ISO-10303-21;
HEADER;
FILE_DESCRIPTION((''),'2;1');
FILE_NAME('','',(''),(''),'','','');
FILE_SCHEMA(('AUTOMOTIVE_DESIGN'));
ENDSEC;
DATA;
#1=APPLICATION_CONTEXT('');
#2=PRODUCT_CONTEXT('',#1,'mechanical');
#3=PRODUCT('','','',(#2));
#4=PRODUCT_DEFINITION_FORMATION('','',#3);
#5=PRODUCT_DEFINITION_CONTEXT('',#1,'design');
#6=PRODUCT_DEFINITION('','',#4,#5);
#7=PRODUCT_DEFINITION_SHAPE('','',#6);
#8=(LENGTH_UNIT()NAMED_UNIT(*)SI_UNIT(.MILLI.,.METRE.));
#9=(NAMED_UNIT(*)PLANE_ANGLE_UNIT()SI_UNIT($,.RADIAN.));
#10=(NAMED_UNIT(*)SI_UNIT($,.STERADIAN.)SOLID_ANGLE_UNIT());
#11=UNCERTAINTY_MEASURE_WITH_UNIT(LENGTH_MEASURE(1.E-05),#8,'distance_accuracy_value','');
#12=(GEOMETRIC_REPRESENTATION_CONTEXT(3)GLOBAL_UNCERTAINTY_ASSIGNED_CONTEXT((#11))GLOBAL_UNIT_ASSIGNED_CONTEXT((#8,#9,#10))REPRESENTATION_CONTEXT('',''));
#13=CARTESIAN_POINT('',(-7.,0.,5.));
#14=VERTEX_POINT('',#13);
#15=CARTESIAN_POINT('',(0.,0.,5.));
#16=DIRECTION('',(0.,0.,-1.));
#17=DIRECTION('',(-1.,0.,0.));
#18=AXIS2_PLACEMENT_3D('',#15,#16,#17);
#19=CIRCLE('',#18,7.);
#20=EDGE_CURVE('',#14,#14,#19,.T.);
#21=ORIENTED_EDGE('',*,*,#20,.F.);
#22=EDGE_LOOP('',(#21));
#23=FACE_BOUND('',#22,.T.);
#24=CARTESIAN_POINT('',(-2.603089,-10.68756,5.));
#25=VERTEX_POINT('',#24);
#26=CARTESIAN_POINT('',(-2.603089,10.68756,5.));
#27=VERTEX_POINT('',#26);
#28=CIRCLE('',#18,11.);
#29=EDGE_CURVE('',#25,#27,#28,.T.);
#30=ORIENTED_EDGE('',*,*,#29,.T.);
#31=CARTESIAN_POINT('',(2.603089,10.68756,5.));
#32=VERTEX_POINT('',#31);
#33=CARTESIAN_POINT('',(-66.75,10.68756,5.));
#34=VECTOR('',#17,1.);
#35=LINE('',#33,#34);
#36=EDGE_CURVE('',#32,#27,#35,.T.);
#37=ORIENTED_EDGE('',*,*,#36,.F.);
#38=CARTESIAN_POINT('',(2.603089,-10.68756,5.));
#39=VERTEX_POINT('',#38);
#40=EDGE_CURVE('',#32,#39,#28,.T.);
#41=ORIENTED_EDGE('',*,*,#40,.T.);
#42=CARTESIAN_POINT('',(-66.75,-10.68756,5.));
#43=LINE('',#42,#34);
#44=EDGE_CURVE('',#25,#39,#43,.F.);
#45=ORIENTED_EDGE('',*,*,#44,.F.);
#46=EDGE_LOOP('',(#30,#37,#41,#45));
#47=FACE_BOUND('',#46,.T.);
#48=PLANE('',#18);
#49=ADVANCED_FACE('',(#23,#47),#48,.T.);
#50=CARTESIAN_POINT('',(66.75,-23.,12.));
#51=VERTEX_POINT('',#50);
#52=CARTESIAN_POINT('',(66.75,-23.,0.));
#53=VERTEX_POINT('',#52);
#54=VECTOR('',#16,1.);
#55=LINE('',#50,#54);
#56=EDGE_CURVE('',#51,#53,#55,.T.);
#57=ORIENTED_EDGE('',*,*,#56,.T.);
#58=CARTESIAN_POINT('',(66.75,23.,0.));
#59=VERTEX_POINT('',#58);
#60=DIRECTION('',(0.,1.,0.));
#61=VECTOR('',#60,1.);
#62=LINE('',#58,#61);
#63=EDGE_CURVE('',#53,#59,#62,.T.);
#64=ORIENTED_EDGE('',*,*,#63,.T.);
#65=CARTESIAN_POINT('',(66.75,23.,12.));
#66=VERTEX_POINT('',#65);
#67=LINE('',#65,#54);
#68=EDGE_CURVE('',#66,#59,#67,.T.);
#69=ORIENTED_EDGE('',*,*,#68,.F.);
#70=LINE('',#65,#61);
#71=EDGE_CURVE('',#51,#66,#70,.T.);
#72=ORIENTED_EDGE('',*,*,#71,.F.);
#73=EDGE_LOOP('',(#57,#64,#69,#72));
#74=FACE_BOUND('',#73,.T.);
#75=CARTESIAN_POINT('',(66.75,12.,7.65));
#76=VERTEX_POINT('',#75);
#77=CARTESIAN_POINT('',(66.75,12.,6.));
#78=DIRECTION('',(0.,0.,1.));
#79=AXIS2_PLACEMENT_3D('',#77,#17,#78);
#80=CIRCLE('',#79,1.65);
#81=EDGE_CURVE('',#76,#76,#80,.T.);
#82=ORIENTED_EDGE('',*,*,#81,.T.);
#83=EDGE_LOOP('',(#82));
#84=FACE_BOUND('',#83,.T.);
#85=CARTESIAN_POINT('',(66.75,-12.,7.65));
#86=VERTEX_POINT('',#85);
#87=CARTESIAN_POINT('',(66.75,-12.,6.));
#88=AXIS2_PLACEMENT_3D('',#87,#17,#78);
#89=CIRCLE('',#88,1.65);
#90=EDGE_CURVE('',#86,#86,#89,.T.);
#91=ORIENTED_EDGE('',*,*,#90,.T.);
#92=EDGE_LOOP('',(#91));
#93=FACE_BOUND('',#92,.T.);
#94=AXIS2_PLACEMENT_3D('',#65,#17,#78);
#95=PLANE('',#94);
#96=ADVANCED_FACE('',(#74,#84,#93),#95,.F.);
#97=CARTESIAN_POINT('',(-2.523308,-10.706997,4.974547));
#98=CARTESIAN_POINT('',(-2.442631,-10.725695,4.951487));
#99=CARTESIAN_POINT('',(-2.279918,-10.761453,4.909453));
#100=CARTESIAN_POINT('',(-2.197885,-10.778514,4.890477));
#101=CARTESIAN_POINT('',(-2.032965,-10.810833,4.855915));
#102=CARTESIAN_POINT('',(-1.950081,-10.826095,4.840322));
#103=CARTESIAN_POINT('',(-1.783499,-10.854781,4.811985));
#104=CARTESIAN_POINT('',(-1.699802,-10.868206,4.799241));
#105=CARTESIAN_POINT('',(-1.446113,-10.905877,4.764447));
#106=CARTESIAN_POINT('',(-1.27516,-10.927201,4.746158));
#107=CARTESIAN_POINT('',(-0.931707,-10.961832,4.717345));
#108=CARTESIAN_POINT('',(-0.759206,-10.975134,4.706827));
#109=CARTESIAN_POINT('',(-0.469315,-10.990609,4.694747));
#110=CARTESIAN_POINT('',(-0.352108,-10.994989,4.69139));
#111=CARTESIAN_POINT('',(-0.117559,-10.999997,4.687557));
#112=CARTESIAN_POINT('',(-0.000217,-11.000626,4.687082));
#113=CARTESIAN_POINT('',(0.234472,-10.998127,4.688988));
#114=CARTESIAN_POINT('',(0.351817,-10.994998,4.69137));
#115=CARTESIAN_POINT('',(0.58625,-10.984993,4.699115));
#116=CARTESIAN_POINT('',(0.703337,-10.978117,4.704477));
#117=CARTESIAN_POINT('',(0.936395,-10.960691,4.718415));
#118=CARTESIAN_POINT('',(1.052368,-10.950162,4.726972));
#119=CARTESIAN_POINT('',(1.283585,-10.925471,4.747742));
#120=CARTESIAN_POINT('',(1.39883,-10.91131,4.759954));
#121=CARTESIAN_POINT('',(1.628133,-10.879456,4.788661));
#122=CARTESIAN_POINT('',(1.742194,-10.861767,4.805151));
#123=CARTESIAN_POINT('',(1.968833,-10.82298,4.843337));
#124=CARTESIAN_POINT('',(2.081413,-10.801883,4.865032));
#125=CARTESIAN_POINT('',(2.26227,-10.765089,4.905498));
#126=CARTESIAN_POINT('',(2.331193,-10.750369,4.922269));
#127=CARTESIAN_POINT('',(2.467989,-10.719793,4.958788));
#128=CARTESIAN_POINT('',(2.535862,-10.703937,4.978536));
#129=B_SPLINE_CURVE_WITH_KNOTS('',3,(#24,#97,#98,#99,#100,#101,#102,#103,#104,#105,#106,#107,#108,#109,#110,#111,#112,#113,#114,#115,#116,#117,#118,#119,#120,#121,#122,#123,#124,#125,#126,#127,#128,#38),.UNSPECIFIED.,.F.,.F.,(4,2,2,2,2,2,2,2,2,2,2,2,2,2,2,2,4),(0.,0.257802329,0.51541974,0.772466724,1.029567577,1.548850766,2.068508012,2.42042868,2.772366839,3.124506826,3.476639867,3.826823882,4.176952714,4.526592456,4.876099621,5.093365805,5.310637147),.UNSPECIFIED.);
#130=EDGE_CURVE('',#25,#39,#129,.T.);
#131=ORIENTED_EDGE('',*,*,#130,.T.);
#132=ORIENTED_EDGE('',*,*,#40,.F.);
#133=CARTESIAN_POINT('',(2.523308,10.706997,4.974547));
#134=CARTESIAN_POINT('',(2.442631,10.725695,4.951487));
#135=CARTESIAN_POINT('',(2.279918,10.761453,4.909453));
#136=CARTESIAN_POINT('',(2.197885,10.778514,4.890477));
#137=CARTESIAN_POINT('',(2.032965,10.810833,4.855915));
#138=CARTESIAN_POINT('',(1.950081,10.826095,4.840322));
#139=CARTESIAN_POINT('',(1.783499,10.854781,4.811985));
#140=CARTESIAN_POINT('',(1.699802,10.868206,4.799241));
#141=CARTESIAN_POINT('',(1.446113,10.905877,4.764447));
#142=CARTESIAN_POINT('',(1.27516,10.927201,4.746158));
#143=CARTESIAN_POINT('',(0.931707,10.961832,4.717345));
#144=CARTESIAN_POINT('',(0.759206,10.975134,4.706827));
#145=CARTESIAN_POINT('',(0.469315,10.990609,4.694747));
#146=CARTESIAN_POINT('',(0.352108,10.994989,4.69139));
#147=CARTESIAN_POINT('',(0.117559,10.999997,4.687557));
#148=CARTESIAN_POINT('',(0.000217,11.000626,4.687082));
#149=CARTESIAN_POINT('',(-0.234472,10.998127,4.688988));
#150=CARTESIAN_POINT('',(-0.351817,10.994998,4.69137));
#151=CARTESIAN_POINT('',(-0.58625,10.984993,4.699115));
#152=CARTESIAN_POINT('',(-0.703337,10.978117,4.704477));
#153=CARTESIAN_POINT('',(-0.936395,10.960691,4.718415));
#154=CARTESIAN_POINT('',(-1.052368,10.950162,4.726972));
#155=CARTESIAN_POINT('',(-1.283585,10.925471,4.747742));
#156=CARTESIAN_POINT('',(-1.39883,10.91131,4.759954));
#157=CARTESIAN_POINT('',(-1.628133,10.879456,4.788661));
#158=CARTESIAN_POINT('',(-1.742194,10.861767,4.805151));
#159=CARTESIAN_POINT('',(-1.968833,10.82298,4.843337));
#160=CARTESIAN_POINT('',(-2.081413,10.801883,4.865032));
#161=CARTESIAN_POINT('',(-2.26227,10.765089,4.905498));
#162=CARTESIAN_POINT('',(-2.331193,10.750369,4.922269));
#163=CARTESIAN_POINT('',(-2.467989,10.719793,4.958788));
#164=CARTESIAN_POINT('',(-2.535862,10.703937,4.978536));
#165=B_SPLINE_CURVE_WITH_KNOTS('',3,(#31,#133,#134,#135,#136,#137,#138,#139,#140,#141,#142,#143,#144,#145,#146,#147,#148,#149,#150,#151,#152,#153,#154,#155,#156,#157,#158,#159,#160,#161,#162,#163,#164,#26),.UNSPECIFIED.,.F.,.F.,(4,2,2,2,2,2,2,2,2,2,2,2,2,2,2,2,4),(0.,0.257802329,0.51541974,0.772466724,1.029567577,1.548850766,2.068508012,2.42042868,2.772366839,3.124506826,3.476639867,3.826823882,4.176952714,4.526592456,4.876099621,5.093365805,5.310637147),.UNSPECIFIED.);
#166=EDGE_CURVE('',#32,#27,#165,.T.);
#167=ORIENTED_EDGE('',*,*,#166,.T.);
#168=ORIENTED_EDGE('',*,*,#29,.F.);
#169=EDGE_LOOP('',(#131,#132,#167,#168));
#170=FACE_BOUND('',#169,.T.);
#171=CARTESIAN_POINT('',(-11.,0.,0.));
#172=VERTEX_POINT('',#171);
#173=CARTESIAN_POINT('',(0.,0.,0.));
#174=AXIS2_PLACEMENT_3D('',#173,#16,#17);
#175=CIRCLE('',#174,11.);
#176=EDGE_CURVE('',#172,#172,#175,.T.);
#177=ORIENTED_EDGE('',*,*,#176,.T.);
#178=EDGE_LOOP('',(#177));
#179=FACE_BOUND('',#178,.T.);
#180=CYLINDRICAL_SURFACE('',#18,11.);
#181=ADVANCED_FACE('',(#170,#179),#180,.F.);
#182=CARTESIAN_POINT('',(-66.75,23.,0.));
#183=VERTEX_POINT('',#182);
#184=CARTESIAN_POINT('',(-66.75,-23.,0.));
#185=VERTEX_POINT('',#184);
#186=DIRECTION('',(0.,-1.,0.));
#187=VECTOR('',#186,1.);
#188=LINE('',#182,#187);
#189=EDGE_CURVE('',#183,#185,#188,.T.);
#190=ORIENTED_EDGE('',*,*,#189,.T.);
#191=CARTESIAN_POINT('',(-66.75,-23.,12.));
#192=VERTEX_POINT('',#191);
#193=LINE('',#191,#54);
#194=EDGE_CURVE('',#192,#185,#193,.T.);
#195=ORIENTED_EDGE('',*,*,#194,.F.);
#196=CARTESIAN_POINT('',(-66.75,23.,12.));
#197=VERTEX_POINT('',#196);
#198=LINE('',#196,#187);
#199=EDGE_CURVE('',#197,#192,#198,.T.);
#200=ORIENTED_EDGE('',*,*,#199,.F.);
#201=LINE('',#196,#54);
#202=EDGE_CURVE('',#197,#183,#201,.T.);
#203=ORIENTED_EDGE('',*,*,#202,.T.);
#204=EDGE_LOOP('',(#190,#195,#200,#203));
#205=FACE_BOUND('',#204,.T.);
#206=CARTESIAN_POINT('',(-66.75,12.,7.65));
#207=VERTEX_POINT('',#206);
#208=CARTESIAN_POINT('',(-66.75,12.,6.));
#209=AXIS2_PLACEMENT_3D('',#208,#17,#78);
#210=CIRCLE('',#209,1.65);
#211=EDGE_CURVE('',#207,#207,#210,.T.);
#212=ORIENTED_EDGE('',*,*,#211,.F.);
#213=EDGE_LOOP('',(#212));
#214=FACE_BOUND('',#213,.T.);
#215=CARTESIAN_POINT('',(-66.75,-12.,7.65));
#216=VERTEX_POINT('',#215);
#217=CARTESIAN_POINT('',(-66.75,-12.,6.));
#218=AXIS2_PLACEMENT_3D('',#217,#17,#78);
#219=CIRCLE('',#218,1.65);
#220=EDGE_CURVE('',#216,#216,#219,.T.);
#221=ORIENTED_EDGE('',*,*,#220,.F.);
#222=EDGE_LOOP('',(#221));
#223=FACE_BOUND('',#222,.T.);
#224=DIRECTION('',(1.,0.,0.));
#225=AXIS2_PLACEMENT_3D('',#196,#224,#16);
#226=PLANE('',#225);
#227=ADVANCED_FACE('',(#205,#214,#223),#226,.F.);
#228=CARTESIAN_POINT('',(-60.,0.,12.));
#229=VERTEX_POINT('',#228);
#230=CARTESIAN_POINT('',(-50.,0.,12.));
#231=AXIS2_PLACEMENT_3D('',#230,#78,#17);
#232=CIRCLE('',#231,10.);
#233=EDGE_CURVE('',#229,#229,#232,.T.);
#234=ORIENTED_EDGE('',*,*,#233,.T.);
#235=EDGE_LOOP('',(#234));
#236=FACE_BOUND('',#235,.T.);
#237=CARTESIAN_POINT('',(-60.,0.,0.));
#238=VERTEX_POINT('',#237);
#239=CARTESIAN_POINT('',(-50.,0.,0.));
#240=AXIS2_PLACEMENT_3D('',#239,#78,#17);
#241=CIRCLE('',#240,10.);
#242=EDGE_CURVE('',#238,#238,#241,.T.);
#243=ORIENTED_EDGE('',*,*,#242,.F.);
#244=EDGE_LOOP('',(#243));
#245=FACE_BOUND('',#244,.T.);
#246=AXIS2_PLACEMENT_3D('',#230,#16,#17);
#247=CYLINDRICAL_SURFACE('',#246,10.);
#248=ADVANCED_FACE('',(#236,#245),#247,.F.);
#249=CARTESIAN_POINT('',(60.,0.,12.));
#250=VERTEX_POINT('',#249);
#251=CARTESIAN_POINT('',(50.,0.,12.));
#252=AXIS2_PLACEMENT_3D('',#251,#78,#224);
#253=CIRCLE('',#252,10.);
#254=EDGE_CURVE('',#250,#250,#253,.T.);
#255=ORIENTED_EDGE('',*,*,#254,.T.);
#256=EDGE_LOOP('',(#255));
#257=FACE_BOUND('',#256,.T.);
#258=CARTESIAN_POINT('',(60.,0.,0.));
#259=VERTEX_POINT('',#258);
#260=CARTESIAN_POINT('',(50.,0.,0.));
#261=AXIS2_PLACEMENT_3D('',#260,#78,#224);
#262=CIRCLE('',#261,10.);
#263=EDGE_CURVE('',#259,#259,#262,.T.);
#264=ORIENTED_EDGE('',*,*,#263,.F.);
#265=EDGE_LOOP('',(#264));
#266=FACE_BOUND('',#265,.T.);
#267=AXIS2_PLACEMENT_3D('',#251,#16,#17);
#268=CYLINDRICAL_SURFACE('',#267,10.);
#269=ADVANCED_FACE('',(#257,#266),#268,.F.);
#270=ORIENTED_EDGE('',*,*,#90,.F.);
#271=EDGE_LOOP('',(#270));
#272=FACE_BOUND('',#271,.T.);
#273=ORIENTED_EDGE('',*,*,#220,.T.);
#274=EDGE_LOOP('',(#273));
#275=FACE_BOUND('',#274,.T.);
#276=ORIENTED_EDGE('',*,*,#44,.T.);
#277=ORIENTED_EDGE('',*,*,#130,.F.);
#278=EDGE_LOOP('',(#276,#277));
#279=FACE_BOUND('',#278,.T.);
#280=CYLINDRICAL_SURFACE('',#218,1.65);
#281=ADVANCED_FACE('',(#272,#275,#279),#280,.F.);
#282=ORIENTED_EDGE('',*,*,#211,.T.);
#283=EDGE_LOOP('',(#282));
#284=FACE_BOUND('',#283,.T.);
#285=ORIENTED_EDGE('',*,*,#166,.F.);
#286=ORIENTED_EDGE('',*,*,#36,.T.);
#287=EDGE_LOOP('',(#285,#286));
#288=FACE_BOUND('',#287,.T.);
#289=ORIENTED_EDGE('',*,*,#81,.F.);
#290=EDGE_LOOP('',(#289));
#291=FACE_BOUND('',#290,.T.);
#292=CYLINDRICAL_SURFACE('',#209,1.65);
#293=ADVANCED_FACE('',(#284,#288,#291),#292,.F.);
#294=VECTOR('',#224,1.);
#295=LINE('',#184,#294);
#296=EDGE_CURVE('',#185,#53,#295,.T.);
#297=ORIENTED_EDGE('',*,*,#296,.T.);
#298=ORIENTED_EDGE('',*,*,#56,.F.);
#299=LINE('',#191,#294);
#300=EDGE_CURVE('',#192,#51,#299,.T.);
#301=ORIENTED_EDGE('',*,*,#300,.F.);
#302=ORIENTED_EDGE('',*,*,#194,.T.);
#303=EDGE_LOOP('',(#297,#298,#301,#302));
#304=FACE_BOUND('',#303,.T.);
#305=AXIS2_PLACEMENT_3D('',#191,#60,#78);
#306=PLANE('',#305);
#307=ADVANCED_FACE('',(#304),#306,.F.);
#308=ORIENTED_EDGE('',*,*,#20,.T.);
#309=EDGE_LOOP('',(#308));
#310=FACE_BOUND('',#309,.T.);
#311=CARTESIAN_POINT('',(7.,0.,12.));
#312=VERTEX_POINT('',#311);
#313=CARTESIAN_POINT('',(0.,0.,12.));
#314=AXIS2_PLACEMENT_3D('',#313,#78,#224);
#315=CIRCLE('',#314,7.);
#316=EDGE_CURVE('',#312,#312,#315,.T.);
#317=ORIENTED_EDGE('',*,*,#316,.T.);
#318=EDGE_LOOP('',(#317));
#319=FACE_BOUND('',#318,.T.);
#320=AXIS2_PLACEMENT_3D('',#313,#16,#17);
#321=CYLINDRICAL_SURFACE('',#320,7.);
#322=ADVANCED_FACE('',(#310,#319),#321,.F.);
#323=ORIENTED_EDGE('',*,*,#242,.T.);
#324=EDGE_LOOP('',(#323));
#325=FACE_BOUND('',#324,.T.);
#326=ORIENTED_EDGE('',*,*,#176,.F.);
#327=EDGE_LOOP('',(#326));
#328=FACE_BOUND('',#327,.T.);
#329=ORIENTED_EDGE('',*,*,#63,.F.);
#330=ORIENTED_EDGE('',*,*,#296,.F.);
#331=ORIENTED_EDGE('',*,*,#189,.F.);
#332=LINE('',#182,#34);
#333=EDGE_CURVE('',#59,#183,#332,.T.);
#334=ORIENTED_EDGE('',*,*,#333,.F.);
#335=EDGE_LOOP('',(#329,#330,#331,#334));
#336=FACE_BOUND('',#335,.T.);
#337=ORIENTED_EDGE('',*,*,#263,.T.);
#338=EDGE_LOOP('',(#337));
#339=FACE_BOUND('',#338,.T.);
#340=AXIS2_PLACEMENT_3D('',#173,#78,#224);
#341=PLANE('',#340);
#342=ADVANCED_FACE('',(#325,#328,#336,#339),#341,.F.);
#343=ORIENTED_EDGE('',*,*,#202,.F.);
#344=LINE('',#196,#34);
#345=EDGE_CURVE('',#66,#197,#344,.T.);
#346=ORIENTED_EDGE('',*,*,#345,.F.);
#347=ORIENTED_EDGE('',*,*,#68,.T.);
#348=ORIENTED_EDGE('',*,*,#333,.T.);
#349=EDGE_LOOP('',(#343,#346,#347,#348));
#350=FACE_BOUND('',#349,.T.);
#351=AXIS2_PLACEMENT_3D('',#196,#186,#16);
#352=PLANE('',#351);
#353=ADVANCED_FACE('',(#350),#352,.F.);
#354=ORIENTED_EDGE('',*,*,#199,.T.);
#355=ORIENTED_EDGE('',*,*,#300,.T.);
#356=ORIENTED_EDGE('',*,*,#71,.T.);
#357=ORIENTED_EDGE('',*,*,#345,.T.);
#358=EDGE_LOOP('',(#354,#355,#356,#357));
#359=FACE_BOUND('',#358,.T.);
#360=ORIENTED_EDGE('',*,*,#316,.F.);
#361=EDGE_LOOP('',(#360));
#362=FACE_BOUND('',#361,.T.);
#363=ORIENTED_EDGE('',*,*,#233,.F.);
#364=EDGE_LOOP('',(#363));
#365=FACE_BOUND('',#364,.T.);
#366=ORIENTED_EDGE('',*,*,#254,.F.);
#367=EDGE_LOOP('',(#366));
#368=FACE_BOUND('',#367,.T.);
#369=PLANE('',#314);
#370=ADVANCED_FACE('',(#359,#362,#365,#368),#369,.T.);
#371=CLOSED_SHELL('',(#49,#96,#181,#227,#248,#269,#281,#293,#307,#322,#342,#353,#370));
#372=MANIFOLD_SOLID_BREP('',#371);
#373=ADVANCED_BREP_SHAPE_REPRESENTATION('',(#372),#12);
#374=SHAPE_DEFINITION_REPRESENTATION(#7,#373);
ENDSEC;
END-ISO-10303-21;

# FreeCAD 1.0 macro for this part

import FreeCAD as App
import Part
import Sketcher
from FreeCAD import Vector
Q = App.Units.Quantity

doc = App.newDocument("Part")
body = doc.addObject("PartDesign::Body", "Body")

sketch1 = body.newObject("Sketcher::SketchObject", "Sketch")
sketch1.AttachmentSupport = (doc.getObject("XY_Plane"), [""])
sketch1.MapMode = "FlatFace"
sketch1.addGeometry([
    Part.LineSegment(Vector(-67, 23, 0), Vector(-67, -23, 0)),
    Part.LineSegment(Vector(-67, -23, 0), Vector(67, -23, 0)),
    Part.LineSegment(Vector(67, -23, 0), Vector(67, 23, 0)),
    Part.LineSegment(Vector(67, 23, 0), Vector(-67, 23, 0)),
    Part.Circle(Vector(-50, 0, 0), Vector(0, 0, 1), 10),
    Part.Circle(Vector(0, 0, 0), Vector(0, 0, 1), 7),
    Part.Circle(Vector(50, 0, 0), Vector(0, 0, 1), 10),
], False)
sketch1.addConstraint([
    Sketcher.Constraint("Coincident", 0, 2, 1, 1),
    Sketcher.Constraint("Coincident", 1, 2, 2, 1),
    Sketcher.Constraint("Coincident", 2, 2, 3, 1),
    Sketcher.Constraint("Coincident", 3, 2, 0, 1),
    Sketcher.Constraint("Vertical", 0),
    Sketcher.Constraint("Horizontal", 1),
    Sketcher.Constraint("Vertical", 2),
    Sketcher.Constraint("Horizontal", 3),
    Sketcher.Constraint("Coincident", 5, 3, -1, 1),
    Sketcher.Constraint("Equal", 4, 6),
    Sketcher.Constraint("Symmetric", 4, 3, 6, 3, -1, 1),
    Sketcher.Constraint("Symmetric", 0, 2, 2, 2, -1, 1),
    Sketcher.Constraint("PointOnObject", 4, 3, -1),
    Sketcher.Constraint("Diameter", 4, Q("20 mm")),
    Sketcher.Constraint("Diameter", 5, Q("14 mm")),
    Sketcher.Constraint("DistanceY", 0, 2, 0, 1, Q("46 mm")),
    Sketcher.Constraint("DistanceX", 1, 1, 1, 2, Q("133.5 mm")),
    Sketcher.Constraint("DistanceX", 4, 3, -1, 1, Q("50 mm")),
])
pad1 = body.newObject("PartDesign::Pad", "Pad")
pad1.Profile = sketch1
pad1.Length = 12

sketch2 = body.newObject("Sketcher::SketchObject", "Sketch001")
sketch2.AttachmentSupport = (doc.getObject("XY_Plane"), [""])
sketch2.MapMode = "FlatFace"
sketch2.addGeometry(Part.Circle(Vector(0, 0, 0), Vector(0, 0, 1), 11), False)
sketch2.addConstraint([
    Sketcher.Constraint("Coincident", 0, 3, -1, 1),
    Sketcher.Constraint("Diameter", 0, Q("22 mm")),
])
pocket1 = body.newObject("PartDesign::Pocket", "Pocket")
pocket1.Profile = sketch2
pocket1.Length = 5
pocket1.Reversed = True

sketch3 = body.newObject("Sketcher::SketchObject", "Sketch002")
sketch3.AttachmentSupport = (doc.getObject("YZ_Plane"), [""])
sketch3.MapMode = "FlatFace"
sketch3.AttachmentOffset = App.Placement(Vector(0, 0, -66.75), App.Rotation())
sketch3.addGeometry([
    Part.Circle(Vector(12, 6, 0), Vector(0, 0, 1), 1.6),
    Part.Circle(Vector(-12, 6, 0), Vector(0, 0, 1), 1.6),
], False)
sketch3.addConstraint([
    Sketcher.Constraint("Equal", 0, 1),
    Sketcher.Constraint("Symmetric", 0, 3, 1, 3, -2),
    Sketcher.Constraint("Diameter", 0, Q("3.3 mm")),
    Sketcher.Constraint("DistanceX", -1, 1, 0, 3, Q("12 mm")),
    Sketcher.Constraint("DistanceY", -1, 1, 0, 3, Q("6 mm")),
])
doc.recompute()
hole = body.newObject("PartDesign::Hole", "Hole")
hole.Profile = sketch3
hole.ThreadType = "None"
hole.Diameter = 3.3
hole.DepthType = "ThroughAll"
hole.Reversed = True
doc.recompute()

mirrored = body.newObject("PartDesign::Mirrored", "Mirrored")
mirrored.Originals = [hole]
mirrored.MirrorPlane = (doc.getObject("YZ_Plane"), [""])
body.Tip = mirrored

doc.recompute()
